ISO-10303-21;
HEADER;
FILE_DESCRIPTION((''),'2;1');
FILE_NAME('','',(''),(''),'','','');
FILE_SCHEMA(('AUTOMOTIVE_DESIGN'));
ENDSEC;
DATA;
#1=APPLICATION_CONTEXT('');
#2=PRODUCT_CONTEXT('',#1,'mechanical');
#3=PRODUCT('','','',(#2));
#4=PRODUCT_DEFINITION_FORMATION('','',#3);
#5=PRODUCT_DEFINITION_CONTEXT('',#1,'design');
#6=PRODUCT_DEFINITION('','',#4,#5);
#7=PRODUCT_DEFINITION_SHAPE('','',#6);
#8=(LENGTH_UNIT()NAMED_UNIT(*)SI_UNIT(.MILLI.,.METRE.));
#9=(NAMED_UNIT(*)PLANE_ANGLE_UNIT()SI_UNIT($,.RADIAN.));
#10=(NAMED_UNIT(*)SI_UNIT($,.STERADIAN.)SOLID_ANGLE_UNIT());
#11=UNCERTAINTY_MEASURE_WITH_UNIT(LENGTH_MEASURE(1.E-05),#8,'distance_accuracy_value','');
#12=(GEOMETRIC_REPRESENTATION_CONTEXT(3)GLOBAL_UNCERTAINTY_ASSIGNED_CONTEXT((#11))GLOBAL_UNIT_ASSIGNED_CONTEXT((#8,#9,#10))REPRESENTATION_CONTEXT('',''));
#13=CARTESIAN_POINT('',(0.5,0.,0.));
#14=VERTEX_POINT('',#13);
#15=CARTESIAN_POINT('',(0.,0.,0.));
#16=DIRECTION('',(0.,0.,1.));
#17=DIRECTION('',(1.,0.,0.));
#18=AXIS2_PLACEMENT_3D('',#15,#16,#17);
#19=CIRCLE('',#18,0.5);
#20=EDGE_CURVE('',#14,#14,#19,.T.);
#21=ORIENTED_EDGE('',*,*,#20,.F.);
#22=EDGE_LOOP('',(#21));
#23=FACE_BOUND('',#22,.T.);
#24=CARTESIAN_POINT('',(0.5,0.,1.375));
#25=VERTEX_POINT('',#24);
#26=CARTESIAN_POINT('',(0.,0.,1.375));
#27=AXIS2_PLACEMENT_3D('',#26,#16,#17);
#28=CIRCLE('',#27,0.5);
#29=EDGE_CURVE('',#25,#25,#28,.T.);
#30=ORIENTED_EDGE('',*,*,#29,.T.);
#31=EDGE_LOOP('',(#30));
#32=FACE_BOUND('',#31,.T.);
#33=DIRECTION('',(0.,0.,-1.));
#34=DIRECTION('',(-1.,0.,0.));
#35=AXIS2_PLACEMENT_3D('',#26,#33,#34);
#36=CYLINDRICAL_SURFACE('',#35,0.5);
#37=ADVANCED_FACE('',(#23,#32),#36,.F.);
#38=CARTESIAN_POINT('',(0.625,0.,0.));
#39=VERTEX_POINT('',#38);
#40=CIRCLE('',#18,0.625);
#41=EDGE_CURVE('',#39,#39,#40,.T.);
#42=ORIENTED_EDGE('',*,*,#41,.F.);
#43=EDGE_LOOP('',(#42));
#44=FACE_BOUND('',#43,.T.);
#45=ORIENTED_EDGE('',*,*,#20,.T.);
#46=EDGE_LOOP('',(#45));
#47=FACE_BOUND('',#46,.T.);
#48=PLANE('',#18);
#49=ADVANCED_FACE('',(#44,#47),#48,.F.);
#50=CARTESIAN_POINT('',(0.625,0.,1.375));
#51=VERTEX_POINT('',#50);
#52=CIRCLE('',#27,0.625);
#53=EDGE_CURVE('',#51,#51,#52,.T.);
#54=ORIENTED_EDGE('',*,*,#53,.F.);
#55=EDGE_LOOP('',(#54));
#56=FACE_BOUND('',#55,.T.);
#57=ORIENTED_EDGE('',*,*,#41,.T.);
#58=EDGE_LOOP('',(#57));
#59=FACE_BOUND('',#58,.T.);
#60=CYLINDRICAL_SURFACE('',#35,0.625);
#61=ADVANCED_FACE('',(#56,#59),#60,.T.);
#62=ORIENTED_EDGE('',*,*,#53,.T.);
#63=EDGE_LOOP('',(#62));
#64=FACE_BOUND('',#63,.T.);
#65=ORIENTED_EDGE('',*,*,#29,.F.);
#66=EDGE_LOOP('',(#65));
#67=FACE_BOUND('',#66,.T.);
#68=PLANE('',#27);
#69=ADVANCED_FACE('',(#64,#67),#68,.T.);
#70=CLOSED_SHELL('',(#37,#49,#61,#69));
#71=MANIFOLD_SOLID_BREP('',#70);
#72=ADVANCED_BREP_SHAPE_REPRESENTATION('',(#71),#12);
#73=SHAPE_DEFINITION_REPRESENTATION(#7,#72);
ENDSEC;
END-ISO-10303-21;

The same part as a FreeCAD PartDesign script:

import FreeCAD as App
import Part
import Sketcher
Q = App.Units.Quantity

doc = App.newDocument("Part")
params = doc.addObject("Spreadsheet::Sheet", "Params")
for row, (alias, value) in enumerate([
    ("sketch1_diameter", "1 mm"),
    ("sketch1_diameter2", "1.25 mm"),
    ("pad1_length", "1.375 mm"),
], start=1):
    params.set(f"A{row}", alias)
    params.set(f"B{row}", "=" + value)
    params.setAlias(f"B{row}", alias)

body = doc.addObject("PartDesign::Body", "Body")

sketch1 = body.newObject("Sketcher::SketchObject", "Sketch")
sketch1.AttachmentSupport = (doc.getObject("XY_Plane"), [""])
sketch1.MapMode = "FlatFace"
sketch1.addGeometry([
    Part.Circle(App.Vector(0, 0, 0), App.Vector(0, 0, 1), 0.625),
    Part.Circle(App.Vector(0, 0, 0), App.Vector(0, 0, 1), 0.5),
], False)
sketch1.addConstraint([
    Sketcher.Constraint("Coincident", 0, 3, -1, 1),
    Sketcher.Constraint("Coincident", 1, 3, -1, 1),
    Sketcher.Constraint("Diameter", 1, Q("1 mm")),
    Sketcher.Constraint("Diameter", 0, Q("1.25 mm")),
])
sketch1.setExpression("Constraints[2]", "Params.sketch1_diameter")
sketch1.setExpression("Constraints[3]", "Params.sketch1_diameter2")
pad1 = body.newObject("PartDesign::Pad", "Pad")
pad1.Profile = sketch1
pad1.setExpression("Length", "Params.pad1_length")

doc.recompute()
